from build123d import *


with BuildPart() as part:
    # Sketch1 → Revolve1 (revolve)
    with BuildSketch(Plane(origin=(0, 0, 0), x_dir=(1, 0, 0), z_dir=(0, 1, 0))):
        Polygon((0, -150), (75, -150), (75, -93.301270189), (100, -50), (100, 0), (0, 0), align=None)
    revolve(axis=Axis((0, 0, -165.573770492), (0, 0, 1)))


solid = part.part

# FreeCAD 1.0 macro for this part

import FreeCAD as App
import Part
import Sketcher
Q = App.Units.Quantity

doc = App.newDocument("Part")
body = doc.addObject("PartDesign::Body", "Body")

# Sketch on XZ plane
sketch1 = body.newObject("Sketcher::SketchObject", "Sketch")
sketch1.AttachmentSupport = (doc.getObject("XZ_Plane"), [""])
sketch1.MapMode = "FlatFace"
sketch1.addGeometry(Part.LineSegment(App.Vector(0, 150, 0), App.Vector(75, 150, 0)), False)
sketch1.addGeometry(Part.LineSegment(App.Vector(75, 150, 0), App.Vector(75, 93, 0)), False)
sketch1.addGeometry(Part.LineSegment(App.Vector(75, 93, 0), App.Vector(100, 50, 0)), False)
sketch1.addGeometry(Part.LineSegment(App.Vector(100, 50, 0), App.Vector(100, 0, 0)), False)
sketch1.addGeometry(Part.LineSegment(App.Vector(100, 0, 0), App.Vector(0, 0, 0)), False)
sketch1.addGeometry(Part.LineSegment(App.Vector(0, 0, 0), App.Vector(0, 150, 0)), False)
sketch1.addConstraint(Sketcher.Constraint("Coincident", 0, 2, 1, 1))
sketch1.addConstraint(Sketcher.Constraint("Coincident", 1, 2, 2, 1))
sketch1.addConstraint(Sketcher.Constraint("Coincident", 2, 2, 3, 1))
sketch1.addConstraint(Sketcher.Constraint("Coincident", 3, 2, 4, 1))
sketch1.addConstraint(Sketcher.Constraint("Coincident", 4, 2, 5, 1))
sketch1.addConstraint(Sketcher.Constraint("Coincident", 5, 2, 0, 1))
sketch1.addConstraint(Sketcher.Constraint("Horizontal", 0))
sketch1.addConstraint(Sketcher.Constraint("Vertical", 1))
sketch1.addConstraint(Sketcher.Constraint("Vertical", 3))
sketch1.addConstraint(Sketcher.Constraint("Horizontal", 4))
sketch1.addConstraint(Sketcher.Constraint("Vertical", 5))
sketch1.addConstraint(Sketcher.Constraint("Coincident", 4, 2, -1, 1))
sketch1.addConstraint(Sketcher.Constraint("DistanceX", 0, 1, 0, 2, Q("75 mm")))
sketch1.addConstraint(Sketcher.Constraint("DistanceX", 4, 2, 4, 1, Q("100 mm")))
sketch1.addConstraint(Sketcher.Constraint("DistanceY", 3, 2, 3, 1, Q("50 mm")))
sketch1.addConstraint(Sketcher.Constraint("DistanceY", 5, 1, 5, 2, Q("150 mm")))
sketch1.addConstraint(Sketcher.Constraint("Angle", 2, Q("-60 deg")))
revolution = body.newObject("PartDesign::Revolution", "Revolution")
revolution.Profile = sketch1
revolution.ReferenceAxis = (sketch1, ["V_Axis"])
revolution.Angle = 360

doc.recompute()
